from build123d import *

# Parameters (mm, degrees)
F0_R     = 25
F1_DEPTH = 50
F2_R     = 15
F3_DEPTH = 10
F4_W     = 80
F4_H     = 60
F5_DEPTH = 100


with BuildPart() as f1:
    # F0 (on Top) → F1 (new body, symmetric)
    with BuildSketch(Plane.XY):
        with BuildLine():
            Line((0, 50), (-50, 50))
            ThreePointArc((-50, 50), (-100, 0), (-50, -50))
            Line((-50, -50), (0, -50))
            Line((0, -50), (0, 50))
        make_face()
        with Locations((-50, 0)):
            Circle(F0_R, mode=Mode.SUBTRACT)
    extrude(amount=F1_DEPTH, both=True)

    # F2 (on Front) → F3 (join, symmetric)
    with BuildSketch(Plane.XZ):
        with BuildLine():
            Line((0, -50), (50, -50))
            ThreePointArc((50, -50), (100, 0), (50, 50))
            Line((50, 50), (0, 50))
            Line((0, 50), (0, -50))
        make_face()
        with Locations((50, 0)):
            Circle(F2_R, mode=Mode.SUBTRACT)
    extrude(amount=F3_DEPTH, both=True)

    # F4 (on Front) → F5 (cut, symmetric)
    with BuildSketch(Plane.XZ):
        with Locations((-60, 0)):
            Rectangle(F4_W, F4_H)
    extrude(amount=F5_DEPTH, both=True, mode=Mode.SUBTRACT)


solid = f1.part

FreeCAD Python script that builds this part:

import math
import FreeCAD as App
import Part
import Sketcher
from FreeCAD import Vector


def add_polygon(sketch, points):
    """Adds a closed chain of lines whose ends are joined by coincident constraints."""
    first, n = sketch.GeometryCount, len(points)
    for a, b in zip(points, points[1:] + points[:1]):
        sketch.addGeometry(Part.LineSegment(App.Vector(*a, 0), App.Vector(*b, 0)), False)
    for i in range(n):
        sketch.addConstraint(Sketcher.Constraint("Coincident", first + i, 2, first + (i + 1) % n, 1))

doc = App.newDocument("Part")
params = doc.addObject("Spreadsheet::Sheet", "Params")
for row, (alias, value) in enumerate([
    ("sketch1_diameter", "50 mm"),
    ("sketch1_radius", "50 mm"),
    ("sketch1_width", "50 mm"),
    ("pad1_length", "100 mm"),
    ("sketch2_diameter", "30 mm"),
    ("sketch2_radius", "50 mm"),
    ("sketch2_width", "50 mm"),
    ("pad2_length", "20 mm"),
    ("sketch3_width", "80 mm"),
    ("sketch3_height", "60 mm"),
    ("pocket1_length", "200 mm"),
], start=1):
    params.set(f"A{row}", alias)
    params.set(f"B{row}", "=" + value)
    params.setAlias(f"B{row}", alias)

body = doc.addObject("PartDesign::Body", "Body")

sketch1 = doc.addObject("Sketcher::SketchObject", "Sketch")
body.addObject(sketch1)
sketch1.AttachmentSupport = (doc.XY_Plane, [""])
sketch1.MapMode = "FlatFace"
sketch1.addGeometry([
    Part.LineSegment(Vector(0, 50, 0), Vector(-50, 50, 0)),
    Part.ArcOfCircle(Part.Circle(Vector(-50, 0, 0), Vector(0, 0, 1), 50), math.radians(90), math.radians(270)),
    Part.LineSegment(Vector(-50, -50, 0), Vector(0, -50, 0)),
    Part.LineSegment(Vector(0, -50, 0), Vector(0, 50, 0)),
    Part.Circle(Vector(-50, 0, 0), Vector(0, 0, 1), 25),
], False)
sketch1.addConstraint([
    Sketcher.Constraint("Tangent", 0, 2, 1, 1),
    Sketcher.Constraint("Tangent", 1, 2, 2, 1),
    Sketcher.Constraint("Coincident", 2, 2, 3, 1),
    Sketcher.Constraint("Coincident", 3, 2, 0, 1),
    Sketcher.Constraint("Horizontal", 0),
    Sketcher.Constraint("Horizontal", 2),
    Sketcher.Constraint("Vertical", 3),
    Sketcher.Constraint("Coincident", 4, 3, 1, 3),
    Sketcher.Constraint("Symmetric", 2, 2, 3, 2, -1, 1),
    Sketcher.Constraint("Diameter", 4, 50.0),
    Sketcher.Constraint("Radius", 1, 50.0),
    Sketcher.Constraint("DistanceX", 0, 2, 0, 1, 50.0),
])
sketch1.setExpression("Constraints[9]", "Params.sketch1_diameter")
sketch1.setExpression("Constraints[10]", "Params.sketch1_radius")
sketch1.setExpression("Constraints[11]", "Params.sketch1_width")
pad1 = doc.addObject("PartDesign::Pad", "Pad")
body.addObject(pad1)
pad1.Profile = sketch1
pad1.setExpression("Length", "Params.pad1_length")
pad1.Midplane = True

sketch2 = doc.addObject("Sketcher::SketchObject", "Sketch001")
body.addObject(sketch2)
sketch2.AttachmentSupport = (doc.XZ_Plane, [""])
sketch2.MapMode = "FlatFace"
sketch2.addGeometry([
    Part.LineSegment(Vector(0, -50, 0), Vector(50, -50, 0)),
    Part.ArcOfCircle(Part.Circle(Vector(50, 0, 0), Vector(0, 0, 1), 50), math.radians(-90), math.radians(90)),
    Part.LineSegment(Vector(50, 50, 0), Vector(0, 50, 0)),
    Part.LineSegment(Vector(0, 50, 0), Vector(0, -50, 0)),
    Part.Circle(Vector(50, 0, 0), Vector(0, 0, 1), 15),
], False)
sketch2.addConstraint([
    Sketcher.Constraint("Tangent", 0, 2, 1, 1),
    Sketcher.Constraint("Tangent", 1, 2, 2, 1),
    Sketcher.Constraint("Coincident", 2, 2, 3, 1),
    Sketcher.Constraint("Coincident", 3, 2, 0, 1),
    Sketcher.Constraint("Horizontal", 0),
    Sketcher.Constraint("Horizontal", 2),
    Sketcher.Constraint("Vertical", 3),
    Sketcher.Constraint("Coincident", 4, 3, 1, 3),
    Sketcher.Constraint("Symmetric", 2, 2, 3, 2, -1, 1),
    Sketcher.Constraint("Diameter", 4, 30.0),
    Sketcher.Constraint("Radius", 1, 50.0),
    Sketcher.Constraint("DistanceX", 0, 1, 0, 2, 50.0),
])
sketch2.setExpression("Constraints[9]", "Params.sketch2_diameter")
sketch2.setExpression("Constraints[10]", "Params.sketch2_radius")
sketch2.setExpression("Constraints[11]", "Params.sketch2_width")
pad2 = doc.addObject("PartDesign::Pad", "Pad001")
body.addObject(pad2)
pad2.Profile = sketch2
pad2.setExpression("Length", "Params.pad2_length")
pad2.Midplane = True

sketch3 = doc.addObject("Sketcher::SketchObject", "Sketch002")
body.addObject(sketch3)
sketch3.AttachmentSupport = (doc.XZ_Plane, [""])
sketch3.MapMode = "FlatFace"
add_polygon(sketch3, [(-100, 30), (-100, -30), (-20, -30), (-20, 30)])
sketch3.addConstraint([
    Sketcher.Constraint("Vertical", 0),
    Sketcher.Constraint("Horizontal", 1),
    Sketcher.Constraint("Vertical", 2),
    Sketcher.Constraint("Horizontal", 3),
    Sketcher.Constraint("DistanceX", 1, 1, 1, 2, 80.0),
    Sketcher.Constraint("DistanceY", 0, 2, 0, 1, 60.0),
    Sketcher.Constraint("DistanceX", 0, 2, -1, 1, 100.0),
    Sketcher.Constraint("DistanceY", 0, 2, -1, 1, 30.0),
])
sketch3.setExpression("Constraints[8]", "Params.sketch3_width")
sketch3.setExpression("Constraints[9]", "Params.sketch3_height")
pocket1 = doc.addObject("PartDesign::Pocket", "Pocket")
body.addObject(pocket1)
pocket1.Profile = sketch3
pocket1.setExpression("Length", "Params.pocket1_length")
pocket1.Midplane = True

doc.recompute()
